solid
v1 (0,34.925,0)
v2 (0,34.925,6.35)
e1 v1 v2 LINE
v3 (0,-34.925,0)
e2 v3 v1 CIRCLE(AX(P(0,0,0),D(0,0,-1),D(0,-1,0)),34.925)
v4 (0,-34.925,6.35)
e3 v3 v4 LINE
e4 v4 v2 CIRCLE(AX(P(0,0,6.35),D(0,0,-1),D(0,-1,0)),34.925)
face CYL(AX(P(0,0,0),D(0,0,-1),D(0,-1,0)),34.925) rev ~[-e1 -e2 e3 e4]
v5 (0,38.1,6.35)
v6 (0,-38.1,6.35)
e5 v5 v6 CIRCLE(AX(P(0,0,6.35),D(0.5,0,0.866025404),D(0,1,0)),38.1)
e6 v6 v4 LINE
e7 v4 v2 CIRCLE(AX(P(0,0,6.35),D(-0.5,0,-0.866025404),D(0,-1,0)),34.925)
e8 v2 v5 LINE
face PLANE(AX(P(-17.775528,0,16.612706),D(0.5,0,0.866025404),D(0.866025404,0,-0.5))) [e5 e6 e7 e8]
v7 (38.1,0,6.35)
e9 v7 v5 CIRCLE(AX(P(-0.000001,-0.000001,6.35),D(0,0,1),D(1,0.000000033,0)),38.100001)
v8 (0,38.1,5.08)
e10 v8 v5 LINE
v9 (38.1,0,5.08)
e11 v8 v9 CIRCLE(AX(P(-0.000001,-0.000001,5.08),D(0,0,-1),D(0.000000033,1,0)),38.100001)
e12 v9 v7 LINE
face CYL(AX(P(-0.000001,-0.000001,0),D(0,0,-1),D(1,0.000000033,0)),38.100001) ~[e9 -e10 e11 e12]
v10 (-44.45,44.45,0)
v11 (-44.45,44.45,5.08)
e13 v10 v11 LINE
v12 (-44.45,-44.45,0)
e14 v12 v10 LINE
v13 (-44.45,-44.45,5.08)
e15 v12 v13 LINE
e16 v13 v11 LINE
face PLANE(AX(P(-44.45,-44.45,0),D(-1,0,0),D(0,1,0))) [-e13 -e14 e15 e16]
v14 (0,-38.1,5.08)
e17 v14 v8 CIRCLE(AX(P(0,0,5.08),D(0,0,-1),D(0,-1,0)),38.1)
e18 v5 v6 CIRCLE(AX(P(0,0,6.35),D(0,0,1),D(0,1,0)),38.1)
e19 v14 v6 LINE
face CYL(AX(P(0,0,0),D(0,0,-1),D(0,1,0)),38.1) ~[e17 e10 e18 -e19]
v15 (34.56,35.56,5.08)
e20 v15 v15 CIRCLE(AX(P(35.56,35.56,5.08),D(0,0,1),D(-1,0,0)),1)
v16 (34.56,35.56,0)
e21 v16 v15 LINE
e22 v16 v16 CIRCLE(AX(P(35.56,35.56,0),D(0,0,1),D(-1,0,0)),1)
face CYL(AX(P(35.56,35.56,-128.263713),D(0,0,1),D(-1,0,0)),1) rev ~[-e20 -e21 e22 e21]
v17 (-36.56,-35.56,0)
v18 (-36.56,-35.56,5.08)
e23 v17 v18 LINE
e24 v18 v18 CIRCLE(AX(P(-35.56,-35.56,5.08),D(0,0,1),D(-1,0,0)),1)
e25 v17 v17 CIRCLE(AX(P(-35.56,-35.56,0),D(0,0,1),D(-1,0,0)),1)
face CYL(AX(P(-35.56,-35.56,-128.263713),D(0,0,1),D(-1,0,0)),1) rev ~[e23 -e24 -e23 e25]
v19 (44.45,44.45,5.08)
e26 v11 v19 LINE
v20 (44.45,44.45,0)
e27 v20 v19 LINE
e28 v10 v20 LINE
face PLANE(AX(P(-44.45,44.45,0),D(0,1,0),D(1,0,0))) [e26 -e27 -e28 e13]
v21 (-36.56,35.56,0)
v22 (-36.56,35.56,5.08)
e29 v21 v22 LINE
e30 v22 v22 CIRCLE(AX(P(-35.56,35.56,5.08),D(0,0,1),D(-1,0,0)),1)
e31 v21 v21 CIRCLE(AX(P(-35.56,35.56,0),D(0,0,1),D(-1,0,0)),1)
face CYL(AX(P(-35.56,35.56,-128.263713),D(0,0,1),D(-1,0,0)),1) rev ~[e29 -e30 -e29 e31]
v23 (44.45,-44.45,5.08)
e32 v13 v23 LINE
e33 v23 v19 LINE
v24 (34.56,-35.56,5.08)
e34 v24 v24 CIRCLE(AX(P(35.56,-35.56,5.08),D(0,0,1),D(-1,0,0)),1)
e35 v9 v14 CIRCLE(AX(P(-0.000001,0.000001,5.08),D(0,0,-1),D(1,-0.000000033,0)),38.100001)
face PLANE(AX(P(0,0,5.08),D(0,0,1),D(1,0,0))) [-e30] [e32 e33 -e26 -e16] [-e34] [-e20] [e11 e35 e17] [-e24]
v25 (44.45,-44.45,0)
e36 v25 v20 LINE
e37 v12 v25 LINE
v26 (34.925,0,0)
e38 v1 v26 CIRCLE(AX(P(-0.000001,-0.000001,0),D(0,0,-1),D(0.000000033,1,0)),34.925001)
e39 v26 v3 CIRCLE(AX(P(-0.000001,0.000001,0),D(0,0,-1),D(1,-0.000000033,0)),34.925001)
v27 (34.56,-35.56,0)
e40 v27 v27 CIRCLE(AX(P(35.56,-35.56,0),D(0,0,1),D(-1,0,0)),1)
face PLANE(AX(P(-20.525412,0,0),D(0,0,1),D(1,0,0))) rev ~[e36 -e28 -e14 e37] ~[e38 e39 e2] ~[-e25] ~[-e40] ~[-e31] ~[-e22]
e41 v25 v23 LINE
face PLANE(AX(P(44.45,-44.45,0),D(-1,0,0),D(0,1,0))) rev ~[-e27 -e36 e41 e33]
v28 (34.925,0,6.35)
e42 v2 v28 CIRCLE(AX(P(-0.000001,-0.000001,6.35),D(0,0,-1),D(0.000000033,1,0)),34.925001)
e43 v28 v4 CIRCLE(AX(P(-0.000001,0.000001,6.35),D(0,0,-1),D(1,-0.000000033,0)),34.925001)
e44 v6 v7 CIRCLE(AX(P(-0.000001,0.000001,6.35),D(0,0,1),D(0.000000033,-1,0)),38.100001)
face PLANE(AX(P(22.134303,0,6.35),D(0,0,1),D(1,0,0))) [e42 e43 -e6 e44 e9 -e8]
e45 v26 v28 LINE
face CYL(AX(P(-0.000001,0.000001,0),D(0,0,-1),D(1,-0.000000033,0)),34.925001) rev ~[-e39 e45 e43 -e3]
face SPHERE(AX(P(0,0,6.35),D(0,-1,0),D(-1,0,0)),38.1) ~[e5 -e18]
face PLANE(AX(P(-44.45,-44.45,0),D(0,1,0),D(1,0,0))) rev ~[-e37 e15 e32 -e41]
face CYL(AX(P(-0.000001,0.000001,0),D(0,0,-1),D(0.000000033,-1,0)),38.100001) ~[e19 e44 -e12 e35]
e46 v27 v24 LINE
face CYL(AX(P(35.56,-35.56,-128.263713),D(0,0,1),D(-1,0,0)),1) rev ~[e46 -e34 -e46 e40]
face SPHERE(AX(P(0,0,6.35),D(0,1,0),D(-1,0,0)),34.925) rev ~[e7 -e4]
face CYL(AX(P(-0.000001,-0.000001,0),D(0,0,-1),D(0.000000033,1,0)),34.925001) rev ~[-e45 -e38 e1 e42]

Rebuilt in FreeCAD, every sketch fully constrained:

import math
import FreeCAD as App
import Part
import Sketcher

V = App.Vector
Q = App.Units.Quantity


def add_polygon(sketch, points):
    """Adds a closed chain of lines whose ends are joined by coincident constraints."""
    first, n = sketch.GeometryCount, len(points)
    for a, b in zip(points, points[1:] + points[:1]):
        sketch.addGeometry(Part.LineSegment(App.Vector(*a, 0), App.Vector(*b, 0)), False)
    for i in range(n):
        sketch.addConstraint(Sketcher.Constraint("Coincident", first + i, 2, first + (i + 1) % n, 1))

doc = App.newDocument("Part")
body = doc.addObject("PartDesign::Body", "Body")

# Sketch on XY plane
sketch1 = body.newObject("Sketcher::SketchObject", "Sketch")
sketch1.AttachmentSupport = (doc.getObject("XY_Plane"), [""])
sketch1.MapMode = "FlatFace"
add_polygon(sketch1, [(-44, 44), (-44, -44), (44, -44), (44, 44)])  # lines 0-3
sketch1.addGeometry(Part.ArcOfCircle(Part.Circle(V(0, 0, 0), V(0, 0, 1), 38), math.radians(90), math.radians(270)), False)  # 4
sketch1.addGeometry(Part.ArcOfCircle(Part.Circle(V(0, 0, 0), V(0, 0, 1), 38), math.radians(0), math.radians(90)), False)  # 5
sketch1.addGeometry(Part.ArcOfCircle(Part.Circle(V(0, 0, 0), V(0, 0, 1), 38), math.radians(-90), math.radians(0)), False)  # 6
sketch1.addConstraint(Sketcher.Constraint("Tangent", 4, 1, 5, 2))
sketch1.addConstraint(Sketcher.Constraint("Tangent", 5, 1, 6, 2))
sketch1.addConstraint(Sketcher.Constraint("Tangent", 6, 1, 4, 2))
sketch1.addConstraint(Sketcher.Constraint("Vertical", 0))
sketch1.addConstraint(Sketcher.Constraint("Horizontal", 1))
sketch1.addConstraint(Sketcher.Constraint("Vertical", 2))
sketch1.addConstraint(Sketcher.Constraint("Horizontal", 3))
sketch1.addConstraint(Sketcher.Constraint("Coincident", 4, 3, -1, 1))
sketch1.addConstraint(Sketcher.Constraint("Symmetric", 0, 2, 2, 2, -1, 1))
sketch1.addConstraint(Sketcher.Constraint("PointOnObject", 4, 1, -2))
sketch1.addConstraint(Sketcher.Constraint("PointOnObject", 5, 1, -1))
sketch1.addConstraint(Sketcher.Constraint("PointOnObject", 6, 1, -2))
sketch1.addConstraint(Sketcher.Constraint("Equal", 3, 0))
sketch1.addConstraint(Sketcher.Constraint("Radius", 4, Q("1.5 in")))
sketch1.addConstraint(Sketcher.Constraint("DistanceX", 1, 1, 1, 2, Q("3.5 in")))
pad1 = body.newObject("PartDesign::Pad", "Pad")
pad1.Profile = sketch1
pad1.Length = Q("0.2 in")

# Sketch on XY plane
sketch2 = body.newObject("Sketcher::SketchObject", "Sketch001")
sketch2.AttachmentSupport = (doc.getObject("XY_Plane"), [""])
sketch2.MapMode = "FlatFace"
sketch2.addGeometry(Part.LineSegment(V(0, 34.9, 0), V(0, 38.1, 0)), False)
sketch2.addGeometry(Part.ArcOfCircle(Part.Circle(V(0, 0, 0), V(0, 0, 1), 38.1), math.radians(90), math.radians(270)), False)
sketch2.addGeometry(Part.LineSegment(V(0, -38.1, 0), V(0, -34.9, 0)), False)
sketch2.addGeometry(Part.ArcOfCircle(Part.Circle(V(0, 0, 0), V(0, 0, 1), 34.9), math.radians(90), math.radians(270)), False)
sketch2.addConstraint(Sketcher.Constraint("Coincident", 0, 2, 1, 1))
sketch2.addConstraint(Sketcher.Constraint("Coincident", 1, 2, 2, 1))
sketch2.addConstraint(Sketcher.Constraint("Coincident", 2, 2, 3, 2))
sketch2.addConstraint(Sketcher.Constraint("Coincident", 3, 1, 0, 1))
sketch2.addConstraint(Sketcher.Constraint("Vertical", 0))
sketch2.addConstraint(Sketcher.Constraint("Vertical", 2))
sketch2.addConstraint(Sketcher.Constraint("Coincident", 1, 3, -1, 1))
sketch2.addConstraint(Sketcher.Constraint("Coincident", 3, 3, -1, 1))
sketch2.addConstraint(Sketcher.Constraint("PointOnObject", 0, 2, -2))
sketch2.addConstraint(Sketcher.Constraint("PointOnObject", 1, 2, -2))
sketch2.addConstraint(Sketcher.Constraint("Radius", 1, Q("1.5 in")))
sketch2.addConstraint(Sketcher.Constraint("Radius", 3, Q("1.375 in")))
pad2 = body.newObject("PartDesign::Pad", "Pad001")
pad2.Profile = sketch2
pad2.Length = Q("0.25 in")

# Sketch on XY plane
sketch3 = body.newObject("Sketcher::SketchObject", "Sketch002")
sketch3.AttachmentSupport = (doc.getObject("XY_Plane"), [""])
sketch3.MapMode = "FlatFace"
sketch3.addGeometry(Part.ArcOfCircle(Part.Circle(V(0, 0, 0), V(0, 0, 1), 38.1), math.radians(-90), math.radians(0)), False)
sketch3.addGeometry(Part.ArcOfCircle(Part.Circle(V(0, 0, 0), V(0, 0, 1), 38.1), math.radians(0), math.radians(90)), False)
sketch3.addGeometry(Part.LineSegment(V(0, 38.1, 0), V(0, 34.9, 0)), False)
sketch3.addGeometry(Part.ArcOfCircle(Part.Circle(V(0, 0, 0), V(0, 0, 1), 34.9), math.radians(0), math.radians(90)), False)
sketch3.addGeometry(Part.ArcOfCircle(Part.Circle(V(0, 0, 0), V(0, 0, 1), 34.9), math.radians(-90), math.radians(0)), False)
sketch3.addGeometry(Part.LineSegment(V(0, -34.9, 0), V(0, -38.1, 0)), False)
sketch3.addConstraint(Sketcher.Constraint("Tangent", 0, 2, 1, 1))
sketch3.addConstraint(Sketcher.Constraint("Coincident", 1, 2, 2, 1))
sketch3.addConstraint(Sketcher.Constraint("Coincident", 2, 2, 3, 2))
sketch3.addConstraint(Sketcher.Constraint("Tangent", 3, 1, 4, 2))
sketch3.addConstraint(Sketcher.Constraint("Coincident", 4, 1, 5, 1))
sketch3.addConstraint(Sketcher.Constraint("Coincident", 5, 2, 0, 1))
sketch3.addConstraint(Sketcher.Constraint("Vertical", 2))
sketch3.addConstraint(Sketcher.Constraint("Vertical", 5))
sketch3.addConstraint(Sketcher.Constraint("Coincident", 0, 3, -1, 1))
sketch3.addConstraint(Sketcher.Constraint("Coincident", 3, 3, -1, 1))
sketch3.addConstraint(Sketcher.Constraint("Equal", 0, 1))
sketch3.addConstraint(Sketcher.Constraint("Equal", 3, 4))
sketch3.addConstraint(Sketcher.Constraint("PointOnObject", 0, 2, -1))
sketch3.addConstraint(Sketcher.Constraint("PointOnObject", 1, 2, -2))
sketch3.addConstraint(Sketcher.Constraint("PointOnObject", 3, 1, -1))
sketch3.addConstraint(Sketcher.Constraint("PointOnObject", 4, 1, -2))
sketch3.addConstraint(Sketcher.Constraint("Radius", 0, Q("1.5 in")))
sketch3.addConstraint(Sketcher.Constraint("Radius", 3, Q("1.375 in")))
pad3 = body.newObject("PartDesign::Pad", "Pad002")
pad3.Profile = sketch3
pad3.Length = Q("0.25 in")

# Sketch on XY plane
sketch4 = body.newObject("Sketcher::SketchObject", "Sketch003")
sketch4.AttachmentSupport = (doc.getObject("XY_Plane"), [""])
sketch4.MapMode = "FlatFace"
sketch4.AttachmentOffset = App.Placement(V(0, 0, 0.25 * 25.4), App.Rotation())
sketch4.addGeometry(Part.LineSegment(V(0, -38.1, 0), V(0, -34.9, 0)), False)
sketch4.addGeometry(Part.ArcOfCircle(Part.Circle(V(0, 0, 0), V(0, 0, 1), 34.9), math.radians(90), math.radians(270)), False)
sketch4.addGeometry(Part.LineSegment(V(0, 34.9, 0), V(0, 38.1, 0)), False)
sketch4.addGeometry(Part.ArcOfCircle(Part.Circle(V(0, 0, 0), V(0, 0, 1), 38.1), math.radians(90), math.radians(270)), False)
sketch4.addConstraint(Sketcher.Constraint("Coincident", 0, 2, 1, 2))
sketch4.addConstraint(Sketcher.Constraint("Coincident", 1, 1, 2, 1))
sketch4.addConstraint(Sketcher.Constraint("Coincident", 2, 2, 3, 1))
sketch4.addConstraint(Sketcher.Constraint("Coincident", 3, 2, 0, 1))
sketch4.addConstraint(Sketcher.Constraint("Vertical", 0))
sketch4.addConstraint(Sketcher.Constraint("Vertical", 2))
sketch4.addConstraint(Sketcher.Constraint("Coincident", 1, 3, -1, 1))
sketch4.addConstraint(Sketcher.Constraint("Coincident", 3, 3, -1, 1))
sketch4.addConstraint(Sketcher.Constraint("PointOnObject", 0, 2, -2))
sketch4.addConstraint(Sketcher.Constraint("PointOnObject", 1, 1, -2))
sketch4.addConstraint(Sketcher.Constraint("Radius", 3, Q("1.5 in")))
sketch4.addConstraint(Sketcher.Constraint("Radius", 1, Q("1.375 in")))
revolution = body.newObject("PartDesign::Revolution", "Revolution")
revolution.Profile = sketch4
revolution.ReferenceAxis = (sketch4, ["V_Axis"])
revolution.Angle = 30

# Sketch on XY plane
sketch5 = body.newObject("Sketcher::SketchObject", "Sketch004")
sketch5.AttachmentSupport = (doc.getObject("XY_Plane"), [""])
sketch5.MapMode = "FlatFace"
sketch5.addGeometry(Part.Circle(V(35.6, -35.6, 0), V(0, 0, 1), 1), False)
sketch5.addGeometry(Part.Circle(V(35.6, 35.6, 0), V(0, 0, 1), 1), False)
sketch5.addGeometry(Part.Circle(V(-35.6, 35.6, 0), V(0, 0, 1), 1), False)
sketch5.addGeometry(Part.Circle(V(-35.6, -35.6, 0), V(0, 0, 1), 1), False)
sketch5.addConstraint(Sketcher.Constraint("Equal", 0, 1))
sketch5.addConstraint(Sketcher.Constraint("Equal", 1, 2))
sketch5.addConstraint(Sketcher.Constraint("Equal", 2, 3))
sketch5.addConstraint(Sketcher.Constraint("Symmetric", 0, 3, 2, 3, -1, 1))
sketch5.addConstraint(Sketcher.Constraint("Symmetric", 1, 3, 3, 3, -1, 1))
sketch5.addConstraint(Sketcher.Constraint("Symmetric", 1, 3, 2, 3, -2))
sketch5.addConstraint(Sketcher.Constraint("DistanceX", -1, 1, 0, 3, Q("1.4 in")))
sketch5.addConstraint(Sketcher.Constraint("DistanceY", 0, 3, -1, 1, Q("1.4 in")))
sketch5.addConstraint(Sketcher.Constraint("Diameter", 0, 2.0))
doc.recompute()
hole = body.newObject("PartDesign::Hole", "Hole")
hole.Profile = sketch5
hole.ThreadType = "None"
hole.Diameter = 2
hole.DepthType = "ThroughAll"
hole.Reversed = True

doc.recompute()
